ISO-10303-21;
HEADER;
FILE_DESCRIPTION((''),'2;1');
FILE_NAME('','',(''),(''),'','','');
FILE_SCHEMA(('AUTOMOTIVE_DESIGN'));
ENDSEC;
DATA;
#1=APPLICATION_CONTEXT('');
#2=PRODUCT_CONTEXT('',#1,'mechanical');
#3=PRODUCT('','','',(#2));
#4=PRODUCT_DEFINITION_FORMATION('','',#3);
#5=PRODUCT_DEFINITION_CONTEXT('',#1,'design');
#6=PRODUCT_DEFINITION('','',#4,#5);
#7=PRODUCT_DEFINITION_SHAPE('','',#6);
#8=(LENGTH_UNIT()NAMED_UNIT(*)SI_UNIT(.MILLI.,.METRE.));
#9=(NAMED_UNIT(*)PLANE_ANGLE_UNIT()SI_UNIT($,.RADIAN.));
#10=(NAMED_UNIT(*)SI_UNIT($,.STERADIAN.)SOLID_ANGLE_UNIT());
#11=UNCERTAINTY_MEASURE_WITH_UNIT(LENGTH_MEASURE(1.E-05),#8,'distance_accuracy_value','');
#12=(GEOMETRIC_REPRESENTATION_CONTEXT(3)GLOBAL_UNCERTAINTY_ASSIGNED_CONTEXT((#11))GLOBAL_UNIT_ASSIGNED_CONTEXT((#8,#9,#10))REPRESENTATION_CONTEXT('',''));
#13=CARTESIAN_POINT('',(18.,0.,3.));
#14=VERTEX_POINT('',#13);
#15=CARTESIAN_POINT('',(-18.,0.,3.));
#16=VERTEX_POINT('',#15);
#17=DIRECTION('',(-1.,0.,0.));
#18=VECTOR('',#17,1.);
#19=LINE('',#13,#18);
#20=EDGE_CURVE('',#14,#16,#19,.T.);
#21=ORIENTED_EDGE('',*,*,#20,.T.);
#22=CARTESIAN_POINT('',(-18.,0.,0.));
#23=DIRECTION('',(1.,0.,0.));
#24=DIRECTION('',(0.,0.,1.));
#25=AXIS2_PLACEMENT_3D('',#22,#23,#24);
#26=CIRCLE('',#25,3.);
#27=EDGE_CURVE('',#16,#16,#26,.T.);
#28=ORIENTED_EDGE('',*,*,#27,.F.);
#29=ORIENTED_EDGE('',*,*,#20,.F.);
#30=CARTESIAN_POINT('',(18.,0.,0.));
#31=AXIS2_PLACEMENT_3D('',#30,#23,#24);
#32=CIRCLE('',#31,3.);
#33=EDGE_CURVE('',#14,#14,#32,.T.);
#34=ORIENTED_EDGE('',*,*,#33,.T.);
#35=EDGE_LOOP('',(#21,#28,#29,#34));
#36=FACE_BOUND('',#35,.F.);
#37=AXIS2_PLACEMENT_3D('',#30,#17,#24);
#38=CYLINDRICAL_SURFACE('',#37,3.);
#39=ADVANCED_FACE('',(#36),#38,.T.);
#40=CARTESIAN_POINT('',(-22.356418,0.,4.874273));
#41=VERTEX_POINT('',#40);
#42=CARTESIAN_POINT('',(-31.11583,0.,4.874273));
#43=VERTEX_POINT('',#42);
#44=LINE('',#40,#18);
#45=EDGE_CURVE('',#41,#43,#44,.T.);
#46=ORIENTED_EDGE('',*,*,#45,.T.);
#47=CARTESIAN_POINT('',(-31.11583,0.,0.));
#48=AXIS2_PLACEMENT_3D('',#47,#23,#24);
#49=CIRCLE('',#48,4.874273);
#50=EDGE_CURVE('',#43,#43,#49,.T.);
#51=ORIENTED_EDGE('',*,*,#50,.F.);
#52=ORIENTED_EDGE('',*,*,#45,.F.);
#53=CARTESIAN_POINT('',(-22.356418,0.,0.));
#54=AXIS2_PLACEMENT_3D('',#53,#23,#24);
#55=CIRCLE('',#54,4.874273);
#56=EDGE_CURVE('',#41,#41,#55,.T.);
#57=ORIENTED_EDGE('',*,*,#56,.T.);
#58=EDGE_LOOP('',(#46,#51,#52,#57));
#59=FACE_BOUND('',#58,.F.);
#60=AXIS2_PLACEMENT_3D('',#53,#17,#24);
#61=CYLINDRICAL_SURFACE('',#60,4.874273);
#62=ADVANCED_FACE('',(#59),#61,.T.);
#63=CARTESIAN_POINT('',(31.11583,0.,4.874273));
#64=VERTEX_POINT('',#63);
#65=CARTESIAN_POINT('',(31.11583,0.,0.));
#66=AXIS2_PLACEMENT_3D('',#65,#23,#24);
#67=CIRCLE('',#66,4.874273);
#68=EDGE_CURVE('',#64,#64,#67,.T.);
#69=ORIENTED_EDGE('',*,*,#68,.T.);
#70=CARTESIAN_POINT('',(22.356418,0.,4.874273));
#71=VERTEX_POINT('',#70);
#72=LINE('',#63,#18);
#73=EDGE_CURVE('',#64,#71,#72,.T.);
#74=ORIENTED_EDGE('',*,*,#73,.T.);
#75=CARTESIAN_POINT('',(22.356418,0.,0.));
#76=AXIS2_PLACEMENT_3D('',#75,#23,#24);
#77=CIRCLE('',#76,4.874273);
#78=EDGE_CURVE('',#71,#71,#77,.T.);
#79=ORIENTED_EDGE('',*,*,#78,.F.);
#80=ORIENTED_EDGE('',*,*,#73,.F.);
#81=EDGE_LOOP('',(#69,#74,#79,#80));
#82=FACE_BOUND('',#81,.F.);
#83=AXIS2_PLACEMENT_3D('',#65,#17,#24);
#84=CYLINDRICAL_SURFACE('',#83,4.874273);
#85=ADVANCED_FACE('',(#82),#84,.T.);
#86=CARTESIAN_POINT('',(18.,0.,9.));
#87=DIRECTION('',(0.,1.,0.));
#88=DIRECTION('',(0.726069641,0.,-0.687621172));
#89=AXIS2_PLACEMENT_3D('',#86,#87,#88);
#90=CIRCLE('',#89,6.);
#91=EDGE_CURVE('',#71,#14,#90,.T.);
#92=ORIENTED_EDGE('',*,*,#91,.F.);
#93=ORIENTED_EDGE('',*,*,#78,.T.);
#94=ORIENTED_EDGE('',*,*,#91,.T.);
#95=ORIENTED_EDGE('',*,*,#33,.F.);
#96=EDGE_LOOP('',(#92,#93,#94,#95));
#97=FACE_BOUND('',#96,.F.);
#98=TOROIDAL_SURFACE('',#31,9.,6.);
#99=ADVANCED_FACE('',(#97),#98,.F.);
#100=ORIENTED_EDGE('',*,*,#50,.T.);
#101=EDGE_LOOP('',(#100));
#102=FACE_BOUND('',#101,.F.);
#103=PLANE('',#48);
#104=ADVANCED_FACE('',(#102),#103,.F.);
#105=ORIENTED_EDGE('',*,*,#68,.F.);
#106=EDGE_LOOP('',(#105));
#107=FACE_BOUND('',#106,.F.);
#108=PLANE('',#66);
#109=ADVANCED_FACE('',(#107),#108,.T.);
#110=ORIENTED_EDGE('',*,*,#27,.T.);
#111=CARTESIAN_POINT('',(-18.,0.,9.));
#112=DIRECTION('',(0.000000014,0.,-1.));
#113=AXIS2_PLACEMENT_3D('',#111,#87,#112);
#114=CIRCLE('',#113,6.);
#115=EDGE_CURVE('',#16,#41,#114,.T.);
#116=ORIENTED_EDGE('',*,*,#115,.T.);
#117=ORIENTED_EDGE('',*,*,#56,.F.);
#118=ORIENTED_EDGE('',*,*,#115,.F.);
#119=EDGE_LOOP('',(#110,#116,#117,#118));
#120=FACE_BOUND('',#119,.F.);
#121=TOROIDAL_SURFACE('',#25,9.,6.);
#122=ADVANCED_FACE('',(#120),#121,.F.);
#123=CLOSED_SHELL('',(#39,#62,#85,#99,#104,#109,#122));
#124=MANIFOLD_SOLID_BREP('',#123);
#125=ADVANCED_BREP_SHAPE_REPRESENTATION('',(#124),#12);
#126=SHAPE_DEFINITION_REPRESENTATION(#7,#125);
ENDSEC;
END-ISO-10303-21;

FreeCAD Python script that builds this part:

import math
import FreeCAD as App
import Part
import Sketcher

V = App.Vector
Q = App.Units.Quantity

doc = App.newDocument("Part")
params = doc.addObject("Spreadsheet::Sheet", "Params")
for row, (alias, value) in enumerate([
    ("sketch1_radius", "6 mm"),
    ("sketch1_width", "36 mm"),
    ("revolution_angle", "360 deg"),
], start=1):
    params.set(f"A{row}", alias)
    params.set(f"B{row}", "=" + value)
    params.setAlias(f"B{row}", alias)

body = doc.addObject("PartDesign::Body", "Body")

# Sketch on XZ plane
sketch1 = body.newObject("Sketcher::SketchObject", "Sketch")
sketch1.AttachmentSupport = (doc.getObject("XZ_Plane"), [""])
sketch1.MapMode = "FlatFace"
sketch1.addGeometry([
    Part.LineSegment(V(18, 3, 0), V(-18, 3, 0)),  # 0
    Part.ArcOfCircle(Part.Circle(V(-18, 9, 0), V(0, 0, 1), 6), math.radians(-137), math.radians(-90)),  # 1
    Part.LineSegment(V(-22.4, 4.9, 0), V(-31.1, 4.9, 0)),  # 2
    Part.LineSegment(V(-31.1, 4.9, 0), V(-31.1, 0, 0)),  # 3
    Part.LineSegment(V(-31.1, 0, 0), V(31.1, 0, 0)),  # 4
    Part.LineSegment(V(31.1, 0, 0), V(31.1, 4.9, 0)),  # 5
    Part.LineSegment(V(31.1, 4.9, 0), V(22.4, 4.9, 0)),  # 6
    Part.ArcOfCircle(Part.Circle(V(18, 9, 0), V(0, 0, 1), 6), math.radians(-90), math.radians(-43)),  # 7
], False)
sketch1.addConstraint([
    Sketcher.Constraint("Tangent", 0, 2, 1, 2),
    Sketcher.Constraint("Coincident", 1, 1, 2, 1),
    Sketcher.Constraint("Coincident", 2, 2, 3, 1),
    Sketcher.Constraint("Coincident", 3, 2, 4, 1),
    Sketcher.Constraint("Coincident", 4, 2, 5, 1),
    Sketcher.Constraint("Coincident", 5, 2, 6, 1),
    Sketcher.Constraint("Coincident", 6, 2, 7, 2),
    Sketcher.Constraint("Tangent", 7, 1, 0, 1),
    Sketcher.Constraint("Horizontal", 0),
    Sketcher.Constraint("Horizontal", 2),
    Sketcher.Constraint("Vertical", 3),
    Sketcher.Constraint("Horizontal", 4),
    Sketcher.Constraint("Vertical", 5),
    Sketcher.Constraint("Horizontal", 6),
    Sketcher.Constraint("Equal", 1, 7),
    Sketcher.Constraint("Symmetric", 3, 2, 4, 2, -1, 1),
    Sketcher.Constraint("Symmetric", 1, 1, 6, 2, -2),
    Sketcher.Constraint("Radius", 1, Q("6 mm")),
    Sketcher.Constraint("DistanceX", 0, 2, 0, 1, Q("36 mm")),
    Sketcher.Constraint("DistanceY", -1, 1, 1, 3, Q("9 mm")),
    Sketcher.Constraint("DistanceX", 2, 2, 2, 1, Q("8.759412 mm")),
    Sketcher.Constraint("DistanceX", 4, 1, 4, 2, Q("62.23166 mm")),
])
sketch1.setExpression("Constraints[17]", "Params.sketch1_radius")
sketch1.setExpression("Constraints[18]", "Params.sketch1_width")
revolution = body.newObject("PartDesign::Revolution", "Revolution")
revolution.Profile = sketch1
revolution.ReferenceAxis = (sketch1, ["H_Axis"])
revolution.setExpression("Angle", "Params.revolution_angle")

doc.recompute()
